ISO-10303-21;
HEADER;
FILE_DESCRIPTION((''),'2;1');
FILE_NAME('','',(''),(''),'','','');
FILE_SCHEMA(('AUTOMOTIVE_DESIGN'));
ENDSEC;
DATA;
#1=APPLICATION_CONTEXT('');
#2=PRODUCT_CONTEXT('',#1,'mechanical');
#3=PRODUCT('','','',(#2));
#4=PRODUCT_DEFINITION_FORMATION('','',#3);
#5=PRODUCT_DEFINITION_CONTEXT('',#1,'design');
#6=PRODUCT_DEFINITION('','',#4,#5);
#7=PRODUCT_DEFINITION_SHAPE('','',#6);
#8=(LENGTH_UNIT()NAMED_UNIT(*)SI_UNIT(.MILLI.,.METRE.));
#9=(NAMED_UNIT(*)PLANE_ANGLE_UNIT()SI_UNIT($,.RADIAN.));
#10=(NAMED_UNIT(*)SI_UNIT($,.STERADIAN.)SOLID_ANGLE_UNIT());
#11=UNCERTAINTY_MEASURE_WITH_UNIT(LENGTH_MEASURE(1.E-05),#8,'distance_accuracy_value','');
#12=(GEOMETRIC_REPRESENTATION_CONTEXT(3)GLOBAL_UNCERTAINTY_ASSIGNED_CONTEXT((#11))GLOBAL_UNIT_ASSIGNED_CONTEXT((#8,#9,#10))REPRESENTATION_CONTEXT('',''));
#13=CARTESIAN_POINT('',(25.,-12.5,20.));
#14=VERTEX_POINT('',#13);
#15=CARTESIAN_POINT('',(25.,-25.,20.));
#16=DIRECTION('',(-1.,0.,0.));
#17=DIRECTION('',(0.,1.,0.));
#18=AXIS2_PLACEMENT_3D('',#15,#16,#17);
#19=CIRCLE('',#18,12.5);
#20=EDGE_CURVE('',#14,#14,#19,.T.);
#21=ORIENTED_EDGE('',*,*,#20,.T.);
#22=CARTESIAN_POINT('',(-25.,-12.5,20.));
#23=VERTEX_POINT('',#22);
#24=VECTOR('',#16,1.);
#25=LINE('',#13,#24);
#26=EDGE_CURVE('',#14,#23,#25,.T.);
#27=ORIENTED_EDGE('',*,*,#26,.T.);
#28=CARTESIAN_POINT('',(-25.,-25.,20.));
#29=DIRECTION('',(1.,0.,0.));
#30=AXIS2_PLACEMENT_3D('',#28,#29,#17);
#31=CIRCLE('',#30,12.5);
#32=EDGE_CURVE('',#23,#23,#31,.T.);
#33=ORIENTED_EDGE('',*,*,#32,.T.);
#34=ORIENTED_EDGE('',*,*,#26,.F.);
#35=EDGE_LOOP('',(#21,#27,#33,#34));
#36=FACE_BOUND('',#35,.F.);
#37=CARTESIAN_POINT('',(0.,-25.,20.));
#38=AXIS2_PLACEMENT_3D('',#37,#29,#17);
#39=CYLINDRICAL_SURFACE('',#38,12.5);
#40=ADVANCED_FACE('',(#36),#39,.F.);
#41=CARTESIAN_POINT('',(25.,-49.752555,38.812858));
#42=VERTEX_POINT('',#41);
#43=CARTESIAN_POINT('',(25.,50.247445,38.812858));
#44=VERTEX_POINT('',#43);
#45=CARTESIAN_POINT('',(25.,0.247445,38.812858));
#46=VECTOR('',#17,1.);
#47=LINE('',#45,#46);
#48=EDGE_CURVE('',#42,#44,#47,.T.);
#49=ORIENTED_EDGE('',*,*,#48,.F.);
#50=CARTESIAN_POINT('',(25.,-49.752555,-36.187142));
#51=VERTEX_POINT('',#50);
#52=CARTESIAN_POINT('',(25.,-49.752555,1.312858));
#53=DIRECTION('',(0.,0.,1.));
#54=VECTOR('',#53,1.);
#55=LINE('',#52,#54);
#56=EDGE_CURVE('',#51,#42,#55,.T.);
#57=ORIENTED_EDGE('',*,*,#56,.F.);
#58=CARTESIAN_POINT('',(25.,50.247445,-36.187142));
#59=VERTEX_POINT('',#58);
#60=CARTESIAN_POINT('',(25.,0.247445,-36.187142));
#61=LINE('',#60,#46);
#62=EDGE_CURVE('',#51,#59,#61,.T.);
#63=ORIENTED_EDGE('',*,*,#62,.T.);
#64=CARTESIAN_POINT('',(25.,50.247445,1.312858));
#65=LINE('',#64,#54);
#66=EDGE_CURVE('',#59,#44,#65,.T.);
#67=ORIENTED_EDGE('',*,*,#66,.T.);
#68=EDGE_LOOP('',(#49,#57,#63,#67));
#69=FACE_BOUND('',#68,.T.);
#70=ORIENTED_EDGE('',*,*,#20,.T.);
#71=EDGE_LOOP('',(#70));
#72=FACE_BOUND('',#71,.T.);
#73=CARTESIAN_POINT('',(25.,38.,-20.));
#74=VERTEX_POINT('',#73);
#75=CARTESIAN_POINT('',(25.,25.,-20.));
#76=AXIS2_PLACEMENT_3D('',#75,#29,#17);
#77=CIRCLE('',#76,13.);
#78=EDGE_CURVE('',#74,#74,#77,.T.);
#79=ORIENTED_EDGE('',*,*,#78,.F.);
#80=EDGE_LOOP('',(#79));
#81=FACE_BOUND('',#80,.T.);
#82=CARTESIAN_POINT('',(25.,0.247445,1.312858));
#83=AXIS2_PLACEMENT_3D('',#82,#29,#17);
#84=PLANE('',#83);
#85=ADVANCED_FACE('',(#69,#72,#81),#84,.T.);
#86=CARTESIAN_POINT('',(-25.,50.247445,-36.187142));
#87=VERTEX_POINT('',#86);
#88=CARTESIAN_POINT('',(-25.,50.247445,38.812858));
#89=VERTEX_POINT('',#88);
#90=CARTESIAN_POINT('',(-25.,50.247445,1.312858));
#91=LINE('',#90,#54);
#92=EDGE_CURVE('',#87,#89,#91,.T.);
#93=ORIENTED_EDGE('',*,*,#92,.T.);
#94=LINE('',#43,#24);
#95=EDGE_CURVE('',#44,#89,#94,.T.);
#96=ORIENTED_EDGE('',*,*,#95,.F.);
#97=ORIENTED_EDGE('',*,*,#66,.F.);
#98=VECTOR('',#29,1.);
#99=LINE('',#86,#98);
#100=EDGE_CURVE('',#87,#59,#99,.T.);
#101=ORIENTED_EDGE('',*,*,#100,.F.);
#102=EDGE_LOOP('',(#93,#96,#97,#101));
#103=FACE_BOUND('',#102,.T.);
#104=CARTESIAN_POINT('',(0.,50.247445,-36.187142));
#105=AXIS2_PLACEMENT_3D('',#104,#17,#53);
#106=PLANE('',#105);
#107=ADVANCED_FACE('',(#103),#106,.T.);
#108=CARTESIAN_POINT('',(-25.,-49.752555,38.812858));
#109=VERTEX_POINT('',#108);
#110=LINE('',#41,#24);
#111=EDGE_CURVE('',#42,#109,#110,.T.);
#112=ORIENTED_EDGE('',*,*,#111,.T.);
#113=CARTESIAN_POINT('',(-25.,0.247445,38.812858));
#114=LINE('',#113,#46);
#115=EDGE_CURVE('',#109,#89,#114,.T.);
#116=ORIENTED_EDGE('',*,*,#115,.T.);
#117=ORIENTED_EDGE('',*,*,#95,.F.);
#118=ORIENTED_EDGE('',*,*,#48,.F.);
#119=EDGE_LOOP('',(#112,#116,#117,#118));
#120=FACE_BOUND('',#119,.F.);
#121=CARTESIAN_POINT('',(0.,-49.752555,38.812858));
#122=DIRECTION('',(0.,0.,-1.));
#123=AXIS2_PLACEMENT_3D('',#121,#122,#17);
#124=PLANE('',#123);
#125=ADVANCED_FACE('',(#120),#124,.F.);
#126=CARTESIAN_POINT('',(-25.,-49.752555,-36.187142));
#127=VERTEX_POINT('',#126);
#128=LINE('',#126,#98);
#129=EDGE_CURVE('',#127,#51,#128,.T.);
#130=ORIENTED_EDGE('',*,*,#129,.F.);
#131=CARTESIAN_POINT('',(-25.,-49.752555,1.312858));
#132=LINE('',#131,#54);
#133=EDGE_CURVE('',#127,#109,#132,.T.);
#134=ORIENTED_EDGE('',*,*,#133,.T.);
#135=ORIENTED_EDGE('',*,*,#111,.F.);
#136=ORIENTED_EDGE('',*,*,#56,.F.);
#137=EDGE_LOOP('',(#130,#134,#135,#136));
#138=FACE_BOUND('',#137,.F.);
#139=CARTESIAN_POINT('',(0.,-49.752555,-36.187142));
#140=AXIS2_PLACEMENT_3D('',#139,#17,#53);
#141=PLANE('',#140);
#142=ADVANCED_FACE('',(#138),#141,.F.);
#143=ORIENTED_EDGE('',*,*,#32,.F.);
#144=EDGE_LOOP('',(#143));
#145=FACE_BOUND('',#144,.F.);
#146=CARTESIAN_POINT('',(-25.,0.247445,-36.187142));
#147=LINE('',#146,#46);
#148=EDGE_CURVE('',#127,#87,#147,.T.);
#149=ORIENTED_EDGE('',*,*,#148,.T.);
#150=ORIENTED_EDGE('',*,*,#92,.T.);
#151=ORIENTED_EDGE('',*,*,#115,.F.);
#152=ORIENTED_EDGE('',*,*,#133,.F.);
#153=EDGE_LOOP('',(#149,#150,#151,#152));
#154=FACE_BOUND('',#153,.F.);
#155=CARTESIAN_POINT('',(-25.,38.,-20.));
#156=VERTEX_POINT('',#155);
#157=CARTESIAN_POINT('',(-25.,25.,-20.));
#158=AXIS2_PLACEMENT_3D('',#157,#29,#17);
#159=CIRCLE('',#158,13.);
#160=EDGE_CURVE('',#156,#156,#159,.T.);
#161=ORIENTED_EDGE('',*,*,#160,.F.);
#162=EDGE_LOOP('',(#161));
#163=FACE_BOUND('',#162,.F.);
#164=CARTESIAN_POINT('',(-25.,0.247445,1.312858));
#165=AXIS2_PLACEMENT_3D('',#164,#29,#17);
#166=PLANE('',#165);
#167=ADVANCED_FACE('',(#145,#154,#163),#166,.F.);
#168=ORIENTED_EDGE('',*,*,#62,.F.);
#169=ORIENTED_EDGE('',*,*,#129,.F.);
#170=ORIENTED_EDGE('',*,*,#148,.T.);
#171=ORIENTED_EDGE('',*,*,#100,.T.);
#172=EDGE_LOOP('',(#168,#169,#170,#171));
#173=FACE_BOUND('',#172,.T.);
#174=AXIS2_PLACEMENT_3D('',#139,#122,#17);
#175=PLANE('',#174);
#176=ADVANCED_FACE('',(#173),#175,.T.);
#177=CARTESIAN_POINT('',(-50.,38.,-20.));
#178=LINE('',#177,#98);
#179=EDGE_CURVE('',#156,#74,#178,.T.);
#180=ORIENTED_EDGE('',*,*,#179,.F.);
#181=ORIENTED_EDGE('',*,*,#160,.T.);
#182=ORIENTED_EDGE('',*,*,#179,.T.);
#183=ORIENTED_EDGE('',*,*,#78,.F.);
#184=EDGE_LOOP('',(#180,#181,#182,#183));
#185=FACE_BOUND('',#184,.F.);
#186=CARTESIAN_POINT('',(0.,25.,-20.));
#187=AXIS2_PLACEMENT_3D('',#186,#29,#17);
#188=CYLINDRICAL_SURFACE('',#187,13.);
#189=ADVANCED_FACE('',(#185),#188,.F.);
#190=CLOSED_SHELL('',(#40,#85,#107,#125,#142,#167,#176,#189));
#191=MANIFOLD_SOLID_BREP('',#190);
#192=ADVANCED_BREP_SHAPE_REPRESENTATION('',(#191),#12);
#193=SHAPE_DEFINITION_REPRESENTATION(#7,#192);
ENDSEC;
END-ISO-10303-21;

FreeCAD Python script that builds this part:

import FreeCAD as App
import Part
import Sketcher

V = App.Vector
Q = App.Units.Quantity


def add_polygon(sketch, points):
    """Adds a closed chain of lines whose ends are joined by coincident constraints."""
    first, n = sketch.GeometryCount, len(points)
    for a, b in zip(points, points[1:] + points[:1]):
        sketch.addGeometry(Part.LineSegment(App.Vector(*a, 0), App.Vector(*b, 0)), False)
    for i in range(n):
        sketch.addConstraint(Sketcher.Constraint("Coincident", first + i, 2, first + (i + 1) % n, 1))

doc = App.newDocument("Part")
body = doc.addObject("PartDesign::Body", "Body")

# Sketch on YZ plane
sketch1 = body.newObject("Sketcher::SketchObject", "Sketch")
sketch1.AttachmentSupport = (doc.getObject("YZ_Plane"), [""])
sketch1.MapMode = "FlatFace"
add_polygon(sketch1, [(-49.752555, 38.812858), (-49.752555, -36.187142), (50.247445, -36.187142), (50.247445, 38.812858)])  # lines 0-3
sketch1.addConstraint([
    Sketcher.Constraint("Vertical", 0),
    Sketcher.Constraint("Horizontal", 1),
    Sketcher.Constraint("Vertical", 2),
    Sketcher.Constraint("Horizontal", 3),
    Sketcher.Constraint("DistanceX", 1, 1, 1, 2, Q("100 mm")),
    Sketcher.Constraint("DistanceY", 0, 2, 0, 1, Q("75 mm")),
    Sketcher.Constraint("DistanceX", 0, 2, -1, 1, Q("49.752555 mm")),
    Sketcher.Constraint("DistanceY", 0, 2, -1, 1, Q("36.187142 mm")),
])
pad1 = body.newObject("PartDesign::Pad", "Pad")
pad1.Profile = sketch1
pad1.Length = 50
pad1.Midplane = True

# Sketch on YZ plane
sketch2 = body.newObject("Sketcher::SketchObject", "Sketch001")
sketch2.AttachmentSupport = (doc.getObject("YZ_Plane"), [""])
sketch2.MapMode = "FlatFace"
sketch2.addGeometry([
    Part.Circle(V(-25, 20, 0), V(0, 0, 1), 12.5),
    Part.Circle(V(25, -20, 0), V(0, 0, 1), 13),
], False)
sketch2.addConstraint([
    Sketcher.Constraint("Symmetric", 0, 3, 1, 3, -1, 1),
    Sketcher.Constraint("Diameter", 0, Q("25 mm")),
    Sketcher.Constraint("Diameter", 1, Q("26 mm")),
    Sketcher.Constraint("DistanceX", 0, 3, -1, 1, Q("25 mm")),
    Sketcher.Constraint("DistanceY", -1, 1, 0, 3, Q("20 mm")),
])
pocket1 = body.newObject("PartDesign::Pocket", "Pocket")
pocket1.Profile = sketch2
pocket1.Length = 100
pocket1.Midplane = True

doc.recompute()
